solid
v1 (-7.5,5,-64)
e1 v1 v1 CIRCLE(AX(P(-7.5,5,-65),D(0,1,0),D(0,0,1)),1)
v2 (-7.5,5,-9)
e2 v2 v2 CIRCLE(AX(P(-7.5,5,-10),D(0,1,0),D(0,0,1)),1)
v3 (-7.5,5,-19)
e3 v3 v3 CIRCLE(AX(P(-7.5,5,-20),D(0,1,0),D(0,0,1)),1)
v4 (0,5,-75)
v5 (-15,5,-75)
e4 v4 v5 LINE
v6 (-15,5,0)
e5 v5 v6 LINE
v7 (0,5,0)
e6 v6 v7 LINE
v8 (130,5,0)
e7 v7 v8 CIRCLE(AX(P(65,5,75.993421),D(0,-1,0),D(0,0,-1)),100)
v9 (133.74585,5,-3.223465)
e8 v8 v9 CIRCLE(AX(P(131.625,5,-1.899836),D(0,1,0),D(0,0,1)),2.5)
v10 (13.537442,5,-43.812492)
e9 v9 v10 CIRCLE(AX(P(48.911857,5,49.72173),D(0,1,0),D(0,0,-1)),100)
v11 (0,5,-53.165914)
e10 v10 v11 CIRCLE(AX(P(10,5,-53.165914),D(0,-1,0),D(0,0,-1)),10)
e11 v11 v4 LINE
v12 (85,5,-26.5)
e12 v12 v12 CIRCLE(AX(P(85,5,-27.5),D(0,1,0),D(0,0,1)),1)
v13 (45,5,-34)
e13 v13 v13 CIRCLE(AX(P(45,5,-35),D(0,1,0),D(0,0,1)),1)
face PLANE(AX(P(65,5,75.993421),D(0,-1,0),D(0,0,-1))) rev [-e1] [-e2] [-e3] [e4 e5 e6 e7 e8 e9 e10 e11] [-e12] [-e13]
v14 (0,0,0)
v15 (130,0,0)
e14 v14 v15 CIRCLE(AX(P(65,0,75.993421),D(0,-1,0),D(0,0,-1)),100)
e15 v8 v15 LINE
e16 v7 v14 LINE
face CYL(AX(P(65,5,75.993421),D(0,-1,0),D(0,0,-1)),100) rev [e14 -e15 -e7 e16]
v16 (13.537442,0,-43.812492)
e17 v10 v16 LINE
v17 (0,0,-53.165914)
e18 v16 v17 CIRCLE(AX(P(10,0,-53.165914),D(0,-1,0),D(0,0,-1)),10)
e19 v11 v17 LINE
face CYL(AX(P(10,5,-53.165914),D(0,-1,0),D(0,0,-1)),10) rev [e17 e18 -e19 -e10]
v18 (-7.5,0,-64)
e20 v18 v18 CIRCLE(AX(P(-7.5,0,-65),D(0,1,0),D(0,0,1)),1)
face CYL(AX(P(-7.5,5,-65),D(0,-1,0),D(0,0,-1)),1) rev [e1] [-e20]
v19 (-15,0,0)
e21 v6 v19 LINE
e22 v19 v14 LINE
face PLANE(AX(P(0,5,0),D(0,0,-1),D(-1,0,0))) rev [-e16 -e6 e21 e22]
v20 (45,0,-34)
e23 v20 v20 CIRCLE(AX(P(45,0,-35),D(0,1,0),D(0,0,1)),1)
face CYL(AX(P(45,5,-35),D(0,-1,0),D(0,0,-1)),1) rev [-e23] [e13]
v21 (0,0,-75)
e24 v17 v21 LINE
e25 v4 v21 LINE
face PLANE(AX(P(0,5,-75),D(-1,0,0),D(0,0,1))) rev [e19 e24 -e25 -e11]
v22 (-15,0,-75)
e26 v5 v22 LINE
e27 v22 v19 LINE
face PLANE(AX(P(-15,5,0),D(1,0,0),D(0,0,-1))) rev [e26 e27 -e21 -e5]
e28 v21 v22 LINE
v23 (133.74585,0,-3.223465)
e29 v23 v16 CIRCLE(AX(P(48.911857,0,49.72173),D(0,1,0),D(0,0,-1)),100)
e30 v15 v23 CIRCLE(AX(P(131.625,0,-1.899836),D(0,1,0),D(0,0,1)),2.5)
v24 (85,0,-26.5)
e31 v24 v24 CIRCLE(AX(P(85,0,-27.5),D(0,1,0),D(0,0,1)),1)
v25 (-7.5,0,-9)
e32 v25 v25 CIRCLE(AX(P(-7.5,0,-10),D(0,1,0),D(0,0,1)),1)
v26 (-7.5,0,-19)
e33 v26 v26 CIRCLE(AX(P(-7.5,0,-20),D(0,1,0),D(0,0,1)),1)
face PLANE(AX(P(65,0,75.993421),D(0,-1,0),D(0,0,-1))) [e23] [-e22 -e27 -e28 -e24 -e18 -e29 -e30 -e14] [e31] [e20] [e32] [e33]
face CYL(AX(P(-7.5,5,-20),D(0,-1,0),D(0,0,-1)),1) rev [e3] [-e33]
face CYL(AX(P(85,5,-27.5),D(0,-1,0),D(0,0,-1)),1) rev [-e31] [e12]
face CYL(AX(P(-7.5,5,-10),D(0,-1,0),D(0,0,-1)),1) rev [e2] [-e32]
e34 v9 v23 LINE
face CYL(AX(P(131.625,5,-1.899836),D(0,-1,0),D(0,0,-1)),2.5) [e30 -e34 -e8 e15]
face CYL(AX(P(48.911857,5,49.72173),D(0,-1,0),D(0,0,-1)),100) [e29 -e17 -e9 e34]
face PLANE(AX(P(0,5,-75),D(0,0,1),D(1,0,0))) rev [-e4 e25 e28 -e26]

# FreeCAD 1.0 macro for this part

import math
import FreeCAD as App
import Part
import Sketcher
from FreeCAD import Vector

doc = App.newDocument("Part")
params = doc.addObject("Spreadsheet::Sheet", "Params")
for row, (alias, value) in enumerate([
    ("sketch1_diameter", "2 mm"),
    ("sketch1_radius", "100 mm"),
    ("sketch1_radius2", "10 mm"),
    ("sketch1_radius3", "2.5 mm"),
    ("sketch1_width", "15 mm"),
    ("pad1_length", "5 mm"),
], start=1):
    params.set(f"A{row}", alias)
    params.set(f"B{row}", "=" + value)
    params.setAlias(f"B{row}", alias)

body = doc.addObject("PartDesign::Body", "Body")

# Sketch on XZ plane
sketch1 = body.newObject("Sketcher::SketchObject", "Sketch")
sketch1.AttachmentSupport = (doc.getObject("XZ_Plane"), [""])
sketch1.MapMode = "FlatFace"
sketch1.addGeometry(Part.LineSegment(Vector(0, -53.165914, 0), Vector(0, -75, 0)), False)
sketch1.addGeometry(Part.LineSegment(Vector(0, -75, 0), Vector(-15, -75, 0)), False)
sketch1.addGeometry(Part.LineSegment(Vector(-15, -75, 0), Vector(-15, 0, 0)), False)
sketch1.addGeometry(Part.LineSegment(Vector(-15, 0, 0), Vector(0, 0, 0)), False)
sketch1.addGeometry(Part.ArcOfCircle(Part.Circle(Vector(65, 75.993421, 0), Vector(0, 0, 1), 100), math.radians(-130.541602), math.radians(-49.458398)), False)
sketch1.addGeometry(Part.ArcOfCircle(Part.Circle(Vector(131.625, -1.899836, 0), Vector(0, 0, 1), 2.5), math.radians(-31.968433), math.radians(130.541602)), False)
sketch1.addGeometry(Part.ArcOfCircle(Part.Circle(Vector(48.911857, 49.72173, 0), Vector(0, 0, 1), 100), math.radians(-110.716496), math.radians(-31.968433)), False)
sketch1.addGeometry(Part.ArcOfCircle(Part.Circle(Vector(10, -53.165914, 0), Vector(0, 0, 1), 10), math.radians(69.283504), math.radians(180)), False)
sketch1.addGeometry(Part.Circle(Vector(85, -27.5, 0), Vector(0, 0, 1), 1), False)
sketch1.addGeometry(Part.Circle(Vector(45, -35, 0), Vector(0, 0, 1), 1), False)
sketch1.addGeometry(Part.Circle(Vector(-7.5, -10, 0), Vector(0, 0, 1), 1), False)
sketch1.addGeometry(Part.Circle(Vector(-7.5, -20, 0), Vector(0, 0, 1), 1), False)
sketch1.addGeometry(Part.Circle(Vector(-7.5, -65, 0), Vector(0, 0, 1), 1), False)
sketch1.addConstraint(Sketcher.Constraint("Coincident", 0, 2, 1, 1))
sketch1.addConstraint(Sketcher.Constraint("Coincident", 1, 2, 2, 1))
sketch1.addConstraint(Sketcher.Constraint("Coincident", 2, 2, 3, 1))
sketch1.addConstraint(Sketcher.Constraint("Coincident", 3, 2, 4, 1))
sketch1.addConstraint(Sketcher.Constraint("Tangent", 4, 2, 5, 2))
sketch1.addConstraint(Sketcher.Constraint("Tangent", 5, 1, 6, 2))
sketch1.addConstraint(Sketcher.Constraint("Tangent", 6, 1, 7, 1))
sketch1.addConstraint(Sketcher.Constraint("Tangent", 7, 2, 0, 1))
sketch1.addConstraint(Sketcher.Constraint("Vertical", 0))
sketch1.addConstraint(Sketcher.Constraint("Horizontal", 1))
sketch1.addConstraint(Sketcher.Constraint("Vertical", 2))
sketch1.addConstraint(Sketcher.Constraint("Horizontal", 3))
sketch1.addConstraint(Sketcher.Constraint("Coincident", 3, 2, -1, 1))
sketch1.addConstraint(Sketcher.Constraint("Equal", 4, 6))
sketch1.addConstraint(Sketcher.Constraint("Equal", 8, 9))
sketch1.addConstraint(Sketcher.Constraint("Equal", 9, 10))
sketch1.addConstraint(Sketcher.Constraint("Equal", 10, 11))
sketch1.addConstraint(Sketcher.Constraint("Equal", 11, 12))
sketch1.addConstraint(Sketcher.Constraint("PointOnObject", 0, 2, -2))
sketch1.addConstraint(Sketcher.Constraint("PointOnObject", 4, 2, -1))
sketch1.addConstraint(Sketcher.Constraint("Vertical", 10, 3, 11, 3))
sketch1.addConstraint(Sketcher.Constraint("Vertical", 11, 3, 12, 3))
sketch1.addConstraint(Sketcher.Constraint("Diameter", 8, 2.0))
sketch1.addConstraint(Sketcher.Constraint("Radius", 4, 100.0))
sketch1.addConstraint(Sketcher.Constraint("Radius", 7, 10.0))
sketch1.addConstraint(Sketcher.Constraint("Radius", 5, 2.5))
sketch1.addConstraint(Sketcher.Constraint("DistanceX", 1, 2, 1, 1, 15.0))
sketch1.addConstraint(Sketcher.Constraint("DistanceY", 2, 1, 2, 2, 75.0))
sketch1.addConstraint(Sketcher.Constraint("DistanceX", -1, 1, 4, 3, 65.0))
sketch1.addConstraint(Sketcher.Constraint("DistanceX", -1, 1, 8, 3, 85.0))
sketch1.addConstraint(Sketcher.Constraint("DistanceX", -1, 1, 9, 3, 45.0))
sketch1.addConstraint(Sketcher.Constraint("DistanceY", 9, 3, -1, 1, 35.0))
sketch1.addConstraint(Sketcher.Constraint("DistanceY", 10, 3, -1, 1, 10.0))
sketch1.addConstraint(Sketcher.Constraint("DistanceY", 11, 3, -1, 1, 20.0))
sketch1.addConstraint(Sketcher.Constraint("DistanceY", 12, 3, -1, 1, 65.0))
sketch1.addConstraint(Sketcher.Constraint("DistanceY", 8, 3, -1, 1, 27.5))
sketch1.addConstraint(Sketcher.Constraint("DistanceX", 10, 3, -1, 1, 7.5))
sketch1.addConstraint(Sketcher.Constraint("DistanceY", 0, 2, 0, 1, 21.834086))
sketch1.setExpression("Constraints[22]", "Params.sketch1_diameter")
sketch1.setExpression("Constraints[23]", "Params.sketch1_radius")
sketch1.setExpression("Constraints[24]", "Params.sketch1_radius2")
sketch1.setExpression("Constraints[25]", "Params.sketch1_radius3")
sketch1.setExpression("Constraints[26]", "Params.sketch1_width")
pad1 = body.newObject("PartDesign::Pad", "Pad")
pad1.Profile = sketch1
pad1.setExpression("Length", "Params.pad1_length")
pad1.Reversed = True

doc.recompute()
